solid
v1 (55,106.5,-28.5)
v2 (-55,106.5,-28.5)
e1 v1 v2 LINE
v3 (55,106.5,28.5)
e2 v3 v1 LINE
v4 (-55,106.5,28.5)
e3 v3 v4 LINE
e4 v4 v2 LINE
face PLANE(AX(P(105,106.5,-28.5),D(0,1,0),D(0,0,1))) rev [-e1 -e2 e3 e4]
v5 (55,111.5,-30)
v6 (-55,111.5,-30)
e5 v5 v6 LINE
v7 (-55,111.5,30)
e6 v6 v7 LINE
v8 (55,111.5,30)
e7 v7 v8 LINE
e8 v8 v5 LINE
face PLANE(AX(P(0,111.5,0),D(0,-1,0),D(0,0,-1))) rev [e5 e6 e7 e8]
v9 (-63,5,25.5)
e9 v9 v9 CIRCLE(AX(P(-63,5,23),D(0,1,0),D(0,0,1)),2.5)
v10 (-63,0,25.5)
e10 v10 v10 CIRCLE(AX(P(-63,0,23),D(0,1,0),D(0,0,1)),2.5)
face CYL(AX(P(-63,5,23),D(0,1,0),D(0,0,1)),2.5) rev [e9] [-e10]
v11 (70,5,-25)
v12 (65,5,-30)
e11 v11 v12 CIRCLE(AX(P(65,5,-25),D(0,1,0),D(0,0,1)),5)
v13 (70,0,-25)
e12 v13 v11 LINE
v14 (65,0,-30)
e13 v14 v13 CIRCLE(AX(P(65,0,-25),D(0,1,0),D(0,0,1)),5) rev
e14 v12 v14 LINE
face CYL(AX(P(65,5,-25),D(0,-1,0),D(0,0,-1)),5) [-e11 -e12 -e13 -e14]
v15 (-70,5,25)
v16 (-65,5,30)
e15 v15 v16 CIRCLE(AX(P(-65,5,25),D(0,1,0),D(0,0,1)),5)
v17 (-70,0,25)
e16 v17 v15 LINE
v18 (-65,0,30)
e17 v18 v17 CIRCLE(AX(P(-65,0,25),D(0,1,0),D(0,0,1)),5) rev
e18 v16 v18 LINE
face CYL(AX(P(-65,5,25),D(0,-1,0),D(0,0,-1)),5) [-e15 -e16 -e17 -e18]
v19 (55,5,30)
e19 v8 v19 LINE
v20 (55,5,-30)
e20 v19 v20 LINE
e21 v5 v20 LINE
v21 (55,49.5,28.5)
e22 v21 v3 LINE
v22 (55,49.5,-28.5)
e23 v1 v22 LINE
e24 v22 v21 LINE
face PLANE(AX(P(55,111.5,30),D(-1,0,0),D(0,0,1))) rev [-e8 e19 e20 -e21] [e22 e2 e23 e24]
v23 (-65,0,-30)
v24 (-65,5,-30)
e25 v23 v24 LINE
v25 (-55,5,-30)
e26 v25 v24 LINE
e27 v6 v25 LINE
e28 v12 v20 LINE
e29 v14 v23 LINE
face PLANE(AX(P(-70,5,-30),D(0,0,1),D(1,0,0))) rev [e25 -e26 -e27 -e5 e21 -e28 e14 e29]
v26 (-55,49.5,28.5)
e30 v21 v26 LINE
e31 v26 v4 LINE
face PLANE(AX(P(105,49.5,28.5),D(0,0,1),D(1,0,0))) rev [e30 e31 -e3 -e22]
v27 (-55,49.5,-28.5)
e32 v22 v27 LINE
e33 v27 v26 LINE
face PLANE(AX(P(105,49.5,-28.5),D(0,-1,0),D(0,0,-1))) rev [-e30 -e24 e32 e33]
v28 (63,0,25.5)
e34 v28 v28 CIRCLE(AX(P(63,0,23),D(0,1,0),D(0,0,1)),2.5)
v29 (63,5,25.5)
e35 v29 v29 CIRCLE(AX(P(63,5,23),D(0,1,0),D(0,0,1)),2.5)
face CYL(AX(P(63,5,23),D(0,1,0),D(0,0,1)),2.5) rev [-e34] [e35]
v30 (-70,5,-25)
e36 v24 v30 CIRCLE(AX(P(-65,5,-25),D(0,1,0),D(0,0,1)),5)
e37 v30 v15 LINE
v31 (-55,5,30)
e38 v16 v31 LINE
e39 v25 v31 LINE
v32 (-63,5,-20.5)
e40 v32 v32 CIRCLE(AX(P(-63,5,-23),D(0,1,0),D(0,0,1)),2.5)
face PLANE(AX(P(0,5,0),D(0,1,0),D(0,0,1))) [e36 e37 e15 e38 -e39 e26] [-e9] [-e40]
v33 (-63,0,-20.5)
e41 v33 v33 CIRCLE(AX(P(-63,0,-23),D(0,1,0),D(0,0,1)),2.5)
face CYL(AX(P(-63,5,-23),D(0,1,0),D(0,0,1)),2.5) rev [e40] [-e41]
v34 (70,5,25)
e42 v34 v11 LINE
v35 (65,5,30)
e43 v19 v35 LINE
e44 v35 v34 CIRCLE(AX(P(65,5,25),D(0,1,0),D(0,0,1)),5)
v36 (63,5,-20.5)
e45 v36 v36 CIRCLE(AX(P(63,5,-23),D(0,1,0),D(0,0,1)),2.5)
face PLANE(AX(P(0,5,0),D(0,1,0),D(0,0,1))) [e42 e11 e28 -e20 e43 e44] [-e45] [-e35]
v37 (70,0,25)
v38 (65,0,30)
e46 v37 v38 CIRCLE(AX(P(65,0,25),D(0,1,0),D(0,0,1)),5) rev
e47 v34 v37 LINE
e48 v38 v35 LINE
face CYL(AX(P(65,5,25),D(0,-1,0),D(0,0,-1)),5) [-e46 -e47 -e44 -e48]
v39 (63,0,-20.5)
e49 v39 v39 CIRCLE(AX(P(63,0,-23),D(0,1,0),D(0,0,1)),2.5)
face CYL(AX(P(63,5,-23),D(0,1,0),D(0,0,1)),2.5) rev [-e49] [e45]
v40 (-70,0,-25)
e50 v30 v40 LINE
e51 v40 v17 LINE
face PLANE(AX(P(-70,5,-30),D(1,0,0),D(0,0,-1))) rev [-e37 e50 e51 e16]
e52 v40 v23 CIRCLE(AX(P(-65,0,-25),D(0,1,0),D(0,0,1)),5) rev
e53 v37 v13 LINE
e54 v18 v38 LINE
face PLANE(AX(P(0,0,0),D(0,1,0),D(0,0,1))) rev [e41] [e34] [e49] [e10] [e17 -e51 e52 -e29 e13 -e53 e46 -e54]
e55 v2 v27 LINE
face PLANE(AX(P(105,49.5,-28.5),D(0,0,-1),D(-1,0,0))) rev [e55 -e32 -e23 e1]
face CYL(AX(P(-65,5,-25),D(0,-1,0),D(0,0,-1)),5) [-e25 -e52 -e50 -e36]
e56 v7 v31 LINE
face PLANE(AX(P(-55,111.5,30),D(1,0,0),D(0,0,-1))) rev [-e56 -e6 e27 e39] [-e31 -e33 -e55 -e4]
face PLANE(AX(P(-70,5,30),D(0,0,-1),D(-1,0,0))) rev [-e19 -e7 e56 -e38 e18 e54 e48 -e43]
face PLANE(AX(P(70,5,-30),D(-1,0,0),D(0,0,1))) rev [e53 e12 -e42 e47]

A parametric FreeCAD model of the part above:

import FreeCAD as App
import Part
import Sketcher
from FreeCAD import Vector
Q = App.Units.Quantity


def edges_at(feature, points):
    """Names of the edges that pass closest to the given points."""
    edges = feature.Shape.Edges
    near = lambda p: min(range(len(edges)), key=lambda i: edges[i].distToShape(Part.Vertex(*p))[0])
    return sorted({f"Edge{near(p) + 1}" for p in points})

doc = App.newDocument("Part")
body = doc.addObject("PartDesign::Body", "Body")

# Sketch on XZ plane
sketch1 = body.newObject("Sketcher::SketchObject", "Sketch")
sketch1.AttachmentSupport = (doc.getObject("XZ_Plane"), [""])
sketch1.MapMode = "FlatFace"
sketch1.addGeometry([
    Part.LineSegment(Vector(-70, -30, 0), Vector(-70, 30, 0)),
    Part.LineSegment(Vector(-70, 30, 0), Vector(70, 30, 0)),
    Part.LineSegment(Vector(70, 30, 0), Vector(70, -30, 0)),
    Part.LineSegment(Vector(70, -30, 0), Vector(-70, -30, 0)),
], False)
sketch1.addConstraint([
    Sketcher.Constraint("Coincident", 0, 2, 1, 1),
    Sketcher.Constraint("Coincident", 1, 2, 2, 1),
    Sketcher.Constraint("Coincident", 2, 2, 3, 1),
    Sketcher.Constraint("Coincident", 3, 2, 0, 1),
    Sketcher.Constraint("Vertical", 0),
    Sketcher.Constraint("Horizontal", 1),
    Sketcher.Constraint("Vertical", 2),
    Sketcher.Constraint("Horizontal", 3),
    Sketcher.Constraint("Symmetric", 0, 2, 2, 2, -1, 1),
    Sketcher.Constraint("DistanceX", 1, 1, 1, 2, Q("140 mm")),
    Sketcher.Constraint("DistanceY", 0, 1, 0, 2, Q("60 mm")),
])
pad1 = body.newObject("PartDesign::Pad", "Pad")
pad1.Profile = sketch1
pad1.Length = 5
pad1.Reversed = True

# Sketch on XZ plane
sketch2 = body.newObject("Sketcher::SketchObject", "Sketch001")
sketch2.AttachmentSupport = (doc.getObject("XZ_Plane"), [""])
sketch2.MapMode = "FlatFace"
sketch2.AttachmentOffset = App.Placement(Vector(0, 0, -5), App.Rotation())
sketch2.addGeometry([
    Part.LineSegment(Vector(-55, -30, 0), Vector(-55, 30, 0)),
    Part.LineSegment(Vector(-55, 30, 0), Vector(55, 30, 0)),
    Part.LineSegment(Vector(55, 30, 0), Vector(55, -30, 0)),
    Part.LineSegment(Vector(55, -30, 0), Vector(-55, -30, 0)),
], False)
sketch2.addConstraint([
    Sketcher.Constraint("Coincident", 0, 2, 1, 1),
    Sketcher.Constraint("Coincident", 1, 2, 2, 1),
    Sketcher.Constraint("Coincident", 2, 2, 3, 1),
    Sketcher.Constraint("Coincident", 3, 2, 0, 1),
    Sketcher.Constraint("Vertical", 0),
    Sketcher.Constraint("Horizontal", 1),
    Sketcher.Constraint("Vertical", 2),
    Sketcher.Constraint("Horizontal", 3),
    Sketcher.Constraint("Symmetric", 0, 2, 2, 2, -1, 1),
    Sketcher.Constraint("DistanceX", 1, 1, 1, 2, Q("110 mm")),
    Sketcher.Constraint("DistanceY", 0, 1, 0, 2, Q("60 mm")),
])
pad2 = body.newObject("PartDesign::Pad", "Pad001")
pad2.Profile = sketch2
pad2.Length = 106.5
pad2.Reversed = True
doc.recompute()

fillet = body.newObject("PartDesign::Fillet", "Fillet")
fillet.Base = (pad2, edges_at(pad2, [
    (70, 2.5, 30),
    (-70, 2.5, 30),
    (-70, 2.5, -30),
    (70, 2.5, -30),
]))
fillet.Radius = 5

# Sketch on YZ plane
sketch3 = body.newObject("Sketcher::SketchObject", "Sketch002")
sketch3.AttachmentSupport = (doc.getObject("YZ_Plane"), [""])
sketch3.MapMode = "FlatFace"
sketch3.AttachmentOffset = App.Placement(Vector(0, 0, -55), App.Rotation())
sketch3.addGeometry([
    Part.LineSegment(Vector(106.5, -28.5, 0), Vector(49.5, -28.5, 0)),
    Part.LineSegment(Vector(49.5, -28.5, 0), Vector(49.5, 28.5, 0)),
    Part.LineSegment(Vector(49.5, 28.5, 0), Vector(106.5, 28.5, 0)),
    Part.LineSegment(Vector(106.5, 28.5, 0), Vector(106.5, -28.5, 0)),
], False)
sketch3.addConstraint([
    Sketcher.Constraint("Coincident", 0, 2, 1, 1),
    Sketcher.Constraint("Coincident", 1, 2, 2, 1),
    Sketcher.Constraint("Coincident", 2, 2, 3, 1),
    Sketcher.Constraint("Coincident", 3, 2, 0, 1),
    Sketcher.Constraint("Horizontal", 0),
    Sketcher.Constraint("Vertical", 1),
    Sketcher.Constraint("Horizontal", 2),
    Sketcher.Constraint("Vertical", 3),
    Sketcher.Constraint("Equal", 2, 1),
    Sketcher.Constraint("DistanceX", 0, 2, 0, 1, Q("57 mm")),
    Sketcher.Constraint("DistanceX", -1, 1, 0, 2, Q("49.5 mm")),
    Sketcher.Constraint("DistanceY", 0, 2, -1, 1, Q("28.5 mm")),
])
pocket1 = body.newObject("PartDesign::Pocket", "Pocket")
pocket1.Profile = sketch3
pocket1.Length = 160
pocket1.Reversed = True

# Sketch on XZ plane
sketch4 = body.newObject("Sketcher::SketchObject", "Sketch003")
sketch4.AttachmentSupport = (doc.getObject("XZ_Plane"), [""])
sketch4.MapMode = "FlatFace"
sketch4.AttachmentOffset = App.Placement(Vector(0, 0, -5), App.Rotation())
sketch4.addGeometry([
    Part.Circle(Vector(-63, -23, 0), Vector(0, 0, 1), 2.5),
    Part.Circle(Vector(63, -23, 0), Vector(0, 0, 1), 2.5),
    Part.Circle(Vector(63, 23, 0), Vector(0, 0, 1), 2.5),
    Part.Circle(Vector(-63, 23, 0), Vector(0, 0, 1), 2.5),
], False)
sketch4.addConstraint([
    Sketcher.Constraint("Equal", 0, 1),
    Sketcher.Constraint("Equal", 1, 2),
    Sketcher.Constraint("Equal", 2, 3),
    Sketcher.Constraint("Symmetric", 0, 3, 2, 3, -1, 1),
    Sketcher.Constraint("Symmetric", 1, 3, 3, 3, -1, 1),
    Sketcher.Constraint("Symmetric", 0, 3, 1, 3, -2),
    Sketcher.Constraint("Diameter", 0, Q("5 mm")),
    Sketcher.Constraint("DistanceX", 0, 3, -1, 1, Q("63 mm")),
    Sketcher.Constraint("DistanceY", 0, 3, -1, 1, Q("23 mm")),
])
doc.recompute()
hole = body.newObject("PartDesign::Hole", "Hole")
hole.Profile = sketch4
hole.ThreadType = "None"
hole.Diameter = 5
hole.DepthType = "ThroughAll"
hole.Reversed = True

doc.recompute()
